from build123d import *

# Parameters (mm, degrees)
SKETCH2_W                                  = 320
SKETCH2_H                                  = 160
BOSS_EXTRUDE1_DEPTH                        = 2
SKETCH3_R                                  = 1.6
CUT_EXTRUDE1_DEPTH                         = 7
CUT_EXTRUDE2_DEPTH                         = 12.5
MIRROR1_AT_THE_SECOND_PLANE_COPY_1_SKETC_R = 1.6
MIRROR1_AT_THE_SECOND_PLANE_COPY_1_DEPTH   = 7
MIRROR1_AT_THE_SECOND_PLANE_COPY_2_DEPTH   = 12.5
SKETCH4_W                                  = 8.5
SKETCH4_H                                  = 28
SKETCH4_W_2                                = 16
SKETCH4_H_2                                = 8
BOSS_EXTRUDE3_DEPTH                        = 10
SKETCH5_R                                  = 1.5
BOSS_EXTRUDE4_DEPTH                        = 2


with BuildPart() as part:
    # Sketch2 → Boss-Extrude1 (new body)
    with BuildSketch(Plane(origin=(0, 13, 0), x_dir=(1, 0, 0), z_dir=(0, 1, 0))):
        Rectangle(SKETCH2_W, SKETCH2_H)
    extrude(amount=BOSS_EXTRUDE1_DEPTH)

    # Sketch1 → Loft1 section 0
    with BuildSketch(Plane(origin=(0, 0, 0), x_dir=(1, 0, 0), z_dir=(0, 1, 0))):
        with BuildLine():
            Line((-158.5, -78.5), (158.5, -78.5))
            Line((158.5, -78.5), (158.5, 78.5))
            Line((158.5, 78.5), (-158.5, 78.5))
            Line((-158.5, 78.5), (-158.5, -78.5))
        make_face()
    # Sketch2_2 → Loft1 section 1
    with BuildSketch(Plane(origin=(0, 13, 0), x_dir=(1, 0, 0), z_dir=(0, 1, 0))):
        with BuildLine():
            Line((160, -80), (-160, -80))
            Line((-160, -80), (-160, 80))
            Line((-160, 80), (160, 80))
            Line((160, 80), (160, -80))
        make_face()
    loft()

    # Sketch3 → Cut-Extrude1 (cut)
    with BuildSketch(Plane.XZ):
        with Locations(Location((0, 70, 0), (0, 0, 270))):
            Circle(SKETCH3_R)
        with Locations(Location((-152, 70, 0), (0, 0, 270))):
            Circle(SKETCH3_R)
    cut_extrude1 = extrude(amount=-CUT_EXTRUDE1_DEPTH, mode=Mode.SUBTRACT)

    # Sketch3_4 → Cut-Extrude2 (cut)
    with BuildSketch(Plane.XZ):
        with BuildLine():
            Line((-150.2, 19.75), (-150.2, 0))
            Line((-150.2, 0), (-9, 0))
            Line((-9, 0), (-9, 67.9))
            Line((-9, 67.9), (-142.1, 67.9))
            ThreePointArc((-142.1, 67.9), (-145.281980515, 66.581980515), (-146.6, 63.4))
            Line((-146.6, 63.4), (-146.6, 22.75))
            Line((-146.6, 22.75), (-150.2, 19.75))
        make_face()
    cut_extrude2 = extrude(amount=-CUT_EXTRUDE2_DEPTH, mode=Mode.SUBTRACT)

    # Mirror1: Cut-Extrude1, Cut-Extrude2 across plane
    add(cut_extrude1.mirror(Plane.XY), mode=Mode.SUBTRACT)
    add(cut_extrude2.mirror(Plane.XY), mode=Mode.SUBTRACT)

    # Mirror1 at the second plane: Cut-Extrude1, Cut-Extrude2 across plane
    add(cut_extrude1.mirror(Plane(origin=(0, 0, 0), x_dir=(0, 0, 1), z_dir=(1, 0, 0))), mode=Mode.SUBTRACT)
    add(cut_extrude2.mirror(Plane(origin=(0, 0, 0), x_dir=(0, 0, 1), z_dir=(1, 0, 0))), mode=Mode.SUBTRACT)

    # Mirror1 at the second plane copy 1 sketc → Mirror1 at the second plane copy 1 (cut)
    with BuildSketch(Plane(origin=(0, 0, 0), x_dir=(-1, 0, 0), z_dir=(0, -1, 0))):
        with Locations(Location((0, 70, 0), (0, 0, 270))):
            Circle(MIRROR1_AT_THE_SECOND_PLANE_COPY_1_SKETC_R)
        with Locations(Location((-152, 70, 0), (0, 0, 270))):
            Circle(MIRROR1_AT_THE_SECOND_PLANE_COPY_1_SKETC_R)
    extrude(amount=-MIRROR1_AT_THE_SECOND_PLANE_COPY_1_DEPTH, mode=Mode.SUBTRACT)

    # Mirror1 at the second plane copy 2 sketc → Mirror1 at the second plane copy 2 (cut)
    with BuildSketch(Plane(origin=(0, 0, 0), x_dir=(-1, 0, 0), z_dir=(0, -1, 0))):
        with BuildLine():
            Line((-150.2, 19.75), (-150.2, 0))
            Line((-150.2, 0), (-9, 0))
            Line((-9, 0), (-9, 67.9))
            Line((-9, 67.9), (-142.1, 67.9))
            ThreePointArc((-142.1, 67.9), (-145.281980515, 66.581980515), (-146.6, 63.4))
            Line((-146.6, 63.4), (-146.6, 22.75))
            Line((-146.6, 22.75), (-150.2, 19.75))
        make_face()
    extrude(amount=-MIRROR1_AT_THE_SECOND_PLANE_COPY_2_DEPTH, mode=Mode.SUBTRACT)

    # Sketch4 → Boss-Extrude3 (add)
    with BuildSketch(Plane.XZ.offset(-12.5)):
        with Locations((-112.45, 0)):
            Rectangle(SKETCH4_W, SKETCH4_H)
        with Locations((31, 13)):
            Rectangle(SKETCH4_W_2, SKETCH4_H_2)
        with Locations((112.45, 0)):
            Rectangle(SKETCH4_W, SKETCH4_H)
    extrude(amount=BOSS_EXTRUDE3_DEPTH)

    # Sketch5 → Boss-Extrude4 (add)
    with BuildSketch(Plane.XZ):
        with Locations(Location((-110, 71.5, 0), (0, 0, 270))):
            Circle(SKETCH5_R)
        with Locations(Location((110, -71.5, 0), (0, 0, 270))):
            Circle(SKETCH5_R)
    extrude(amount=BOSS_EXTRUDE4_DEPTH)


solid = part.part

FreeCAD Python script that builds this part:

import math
import FreeCAD as App
import Part
import Sketcher

V = App.Vector

doc = App.newDocument("Part")
body = doc.addObject("PartDesign::Body", "Body")

# Sketch on XZ plane
sketch1 = body.newObject("Sketcher::SketchObject", "Sketch")
sketch1.AttachmentSupport = (doc.getObject("XZ_Plane"), [""])
sketch1.MapMode = "FlatFace"
sketch1.AttachmentOffset = App.Placement(V(0, 0, -13), App.Rotation())
sketch1.addGeometry([
    Part.LineSegment(V(-160, -80, 0), V(-160, 80, 0)),
    Part.LineSegment(V(-160, 80, 0), V(160, 80, 0)),
    Part.LineSegment(V(160, 80, 0), V(160, -80, 0)),
    Part.LineSegment(V(160, -80, 0), V(-160, -80, 0)),
], False)
sketch1.addConstraint([
    Sketcher.Constraint("Coincident", 0, 2, 1, 1),
    Sketcher.Constraint("Coincident", 1, 2, 2, 1),
    Sketcher.Constraint("Coincident", 2, 2, 3, 1),
    Sketcher.Constraint("Coincident", 3, 2, 0, 1),
    Sketcher.Constraint("Vertical", 0),
    Sketcher.Constraint("Horizontal", 1),
    Sketcher.Constraint("Vertical", 2),
    Sketcher.Constraint("Horizontal", 3),
    Sketcher.Constraint("Symmetric", 0, 2, 2, 2, -1, 1),
    Sketcher.Constraint("DistanceX", 1, 1, 1, 2, 320.0),
    Sketcher.Constraint("DistanceY", 0, 1, 0, 2, 160.0),
])
pad1 = body.newObject("PartDesign::Pad", "Pad")
pad1.Profile = sketch1
pad1.Length = 2
pad1.Reversed = True

# Sketch on XZ plane
sketch2 = body.newObject("Sketcher::SketchObject", "Sketch001")
sketch2.AttachmentSupport = (doc.getObject("XZ_Plane"), [""])
sketch2.MapMode = "FlatFace"
sketch2.addGeometry([
    Part.LineSegment(V(-158.5, 78.5, 0), V(158.5, 78.5, 0)),
    Part.LineSegment(V(158.5, 78.5, 0), V(158.5, -78.5, 0)),
    Part.LineSegment(V(158.5, -78.5, 0), V(-158.5, -78.5, 0)),
    Part.LineSegment(V(-158.5, -78.5, 0), V(-158.5, 78.5, 0)),
], False)
sketch2.addConstraint([
    Sketcher.Constraint("Coincident", 0, 2, 1, 1),
    Sketcher.Constraint("Coincident", 1, 2, 2, 1),
    Sketcher.Constraint("Coincident", 2, 2, 3, 1),
    Sketcher.Constraint("Coincident", 3, 2, 0, 1),
    Sketcher.Constraint("Horizontal", 0),
    Sketcher.Constraint("Vertical", 1),
    Sketcher.Constraint("Horizontal", 2),
    Sketcher.Constraint("Vertical", 3),
    Sketcher.Constraint("Symmetric", 0, 2, 2, 2, -1, 1),
    Sketcher.Constraint("DistanceX", 0, 1, 0, 2, 317.0),
    Sketcher.Constraint("DistanceY", 1, 2, 1, 1, 157.0),
])

# Sketch on XZ plane
sketch3 = body.newObject("Sketcher::SketchObject", "Sketch002")
sketch3.AttachmentSupport = (doc.getObject("XZ_Plane"), [""])
sketch3.MapMode = "FlatFace"
sketch3.AttachmentOffset = App.Placement(V(0, 0, -13), App.Rotation())
sketch3.addGeometry([
    Part.LineSegment(V(-160, 80, 0), V(160, 80, 0)),
    Part.LineSegment(V(160, 80, 0), V(160, -80, 0)),
    Part.LineSegment(V(160, -80, 0), V(-160, -80, 0)),
    Part.LineSegment(V(-160, -80, 0), V(-160, 80, 0)),
], False)
sketch3.addConstraint([
    Sketcher.Constraint("Coincident", 0, 2, 1, 1),
    Sketcher.Constraint("Coincident", 1, 2, 2, 1),
    Sketcher.Constraint("Coincident", 2, 2, 3, 1),
    Sketcher.Constraint("Coincident", 3, 2, 0, 1),
    Sketcher.Constraint("Horizontal", 0),
    Sketcher.Constraint("Vertical", 1),
    Sketcher.Constraint("Horizontal", 2),
    Sketcher.Constraint("Vertical", 3),
    Sketcher.Constraint("Symmetric", 0, 2, 2, 2, -1, 1),
    Sketcher.Constraint("DistanceX", 0, 1, 0, 2, 320.0),
    Sketcher.Constraint("DistanceY", 1, 2, 1, 1, 160.0),
])

additiveloft = body.newObject("PartDesign::AdditiveLoft", "AdditiveLoft")
additiveloft.Profile = sketch2
additiveloft.Sections = [sketch3]

# Sketch on XZ plane
sketch4 = body.newObject("Sketcher::SketchObject", "Sketch003")
sketch4.AttachmentSupport = (doc.getObject("XZ_Plane"), [""])
sketch4.MapMode = "FlatFace"
sketch4.addGeometry([
    Part.Circle(V(0, 70, 0), V(0, 0, 1), 1.6),
    Part.Circle(V(-152, 70, 0), V(0, 0, 1), 1.6),
], False)
sketch4.addConstraint([
    Sketcher.Constraint("Equal", 0, 1),
    Sketcher.Constraint("PointOnObject", 0, 3, -2),
    Sketcher.Constraint("Horizontal", 0, 3, 1, 3),
    Sketcher.Constraint("Diameter", 0, 3.2),
    Sketcher.Constraint("DistanceY", -1, 1, 0, 3, 70.0),
    Sketcher.Constraint("DistanceX", 1, 3, -1, 1, 152.0),
])
pocket1 = body.newObject("PartDesign::Pocket", "Pocket")
pocket1.Profile = sketch4
pocket1.Length = 7

# Sketch on XZ plane
sketch5 = body.newObject("Sketcher::SketchObject", "Sketch004")
sketch5.AttachmentSupport = (doc.getObject("XZ_Plane"), [""])
sketch5.MapMode = "FlatFace"
sketch5.addGeometry([
    Part.LineSegment(V(-150.2, 19.75, 0), V(-150.2, 0, 0)),  # 0
    Part.LineSegment(V(-150.2, 0, 0), V(-9, 0, 0)),  # 1
    Part.LineSegment(V(-9, 0, 0), V(-9, 67.9, 0)),  # 2
    Part.LineSegment(V(-9, 67.9, 0), V(-142.1, 67.9, 0)),  # 3
    Part.ArcOfCircle(Part.Circle(V(-142.1, 63.4, 0), V(0, 0, 1), 4.5), math.radians(90), math.radians(180)),  # 4
    Part.LineSegment(V(-146.6, 63.4, 0), V(-146.6, 22.75, 0)),  # 5
    Part.LineSegment(V(-146.6, 22.75, 0), V(-150.2, 19.75, 0)),  # 6
], False)
sketch5.addConstraint([
    Sketcher.Constraint("Coincident", 0, 2, 1, 1),
    Sketcher.Constraint("Coincident", 1, 2, 2, 1),
    Sketcher.Constraint("Coincident", 2, 2, 3, 1),
    Sketcher.Constraint("Tangent", 3, 2, 4, 1),
    Sketcher.Constraint("Tangent", 4, 2, 5, 1),
    Sketcher.Constraint("Coincident", 5, 2, 6, 1),
    Sketcher.Constraint("Coincident", 6, 2, 0, 1),
    Sketcher.Constraint("Vertical", 0),
    Sketcher.Constraint("Horizontal", 1),
    Sketcher.Constraint("Vertical", 2),
    Sketcher.Constraint("Horizontal", 3),
    Sketcher.Constraint("Vertical", 5),
    Sketcher.Constraint("PointOnObject", 0, 2, -1),
    Sketcher.Constraint("Radius", 4, 4.5),
    Sketcher.Constraint("DistanceX", 1, 1, 1, 2, 141.2),
    Sketcher.Constraint("DistanceX", 3, 2, 3, 1, 133.1),
    Sketcher.Constraint("DistanceY", 2, 1, 2, 2, 67.9),
    Sketcher.Constraint("DistanceX", 1, 2, -1, 1, 9.0),
    Sketcher.Constraint("DistanceY", 6, 2, 5, 2, 3.0),
    Sketcher.Constraint("DistanceY", 0, 2, 0, 1, 19.75),
])
pocket2 = body.newObject("PartDesign::Pocket", "Pocket001")
pocket2.Profile = sketch5
pocket2.Length = 12.5
doc.recompute()

mirrored = body.newObject("PartDesign::Mirrored", "Mirrored")
mirrored.Originals = [pocket1, pocket2]
mirrored.MirrorPlane = (doc.getObject("XY_Plane"), [""])
body.Tip = mirrored
doc.recompute()

mirrored2 = body.newObject("PartDesign::Mirrored", "Mirrored001")
mirrored2.Originals = [pocket1, pocket2]
mirrored2.MirrorPlane = (doc.getObject("YZ_Plane"), [""])
body.Tip = mirrored2

# Sketch on XZ plane
sketch6 = body.newObject("Sketcher::SketchObject", "Sketch005")
sketch6.AttachmentSupport = (doc.getObject("XZ_Plane"), [""])
sketch6.MapMode = "FlatFace"
sketch6.addGeometry([
    Part.Circle(V(0, -70, 0), V(0, 0, 1), 1.6),
    Part.Circle(V(152, -70, 0), V(0, 0, 1), 1.6),
], False)
sketch6.addConstraint([
    Sketcher.Constraint("Equal", 0, 1),
    Sketcher.Constraint("PointOnObject", 0, 3, -2),
    Sketcher.Constraint("Horizontal", 0, 3, 1, 3),
    Sketcher.Constraint("Diameter", 0, 3.2),
    Sketcher.Constraint("DistanceY", 0, 3, -1, 1, 70.0),
    Sketcher.Constraint("DistanceX", -1, 1, 1, 3, 152.0),
])
pocket3 = body.newObject("PartDesign::Pocket", "Pocket002")
pocket3.Profile = sketch6
pocket3.Length = 7

# Sketch on XZ plane
sketch7 = body.newObject("Sketcher::SketchObject", "Sketch006")
sketch7.AttachmentSupport = (doc.getObject("XZ_Plane"), [""])
sketch7.MapMode = "FlatFace"
sketch7.addGeometry([
    Part.LineSegment(V(150.2, -19.75, 0), V(150.2, 0, 0)),  # 0
    Part.LineSegment(V(150.2, 0, 0), V(9, 0, 0)),  # 1
    Part.LineSegment(V(9, 0, 0), V(9, -67.9, 0)),  # 2
    Part.LineSegment(V(9, -67.9, 0), V(142.1, -67.9, 0)),  # 3
    Part.ArcOfCircle(Part.Circle(V(142.1, -63.4, 0), V(0, 0, 1), 4.5), math.radians(-90), math.radians(0)),  # 4
    Part.LineSegment(V(146.6, -63.4, 0), V(146.6, -22.75, 0)),  # 5
    Part.LineSegment(V(146.6, -22.75, 0), V(150.2, -19.75, 0)),  # 6
], False)
sketch7.addConstraint([
    Sketcher.Constraint("Coincident", 0, 2, 1, 1),
    Sketcher.Constraint("Coincident", 1, 2, 2, 1),
    Sketcher.Constraint("Coincident", 2, 2, 3, 1),
    Sketcher.Constraint("Tangent", 3, 2, 4, 1),
    Sketcher.Constraint("Tangent", 4, 2, 5, 1),
    Sketcher.Constraint("Coincident", 5, 2, 6, 1),
    Sketcher.Constraint("Coincident", 6, 2, 0, 1),
    Sketcher.Constraint("Vertical", 0),
    Sketcher.Constraint("Horizontal", 1),
    Sketcher.Constraint("Vertical", 2),
    Sketcher.Constraint("Horizontal", 3),
    Sketcher.Constraint("Vertical", 5),
    Sketcher.Constraint("PointOnObject", 0, 2, -1),
    Sketcher.Constraint("Radius", 4, 4.5),
    Sketcher.Constraint("DistanceX", 1, 2, 1, 1, 141.2),
    Sketcher.Constraint("DistanceX", 3, 1, 3, 2, 133.1),
    Sketcher.Constraint("DistanceY", 2, 2, 2, 1, 67.9),
    Sketcher.Constraint("DistanceX", -1, 1, 1, 2, 9.0),
    Sketcher.Constraint("DistanceY", 5, 2, 6, 2, 3.0),
    Sketcher.Constraint("DistanceY", 0, 1, 0, 2, 19.75),
])
pocket4 = body.newObject("PartDesign::Pocket", "Pocket003")
pocket4.Profile = sketch7
pocket4.Length = 12.5

# Sketch on XZ plane
sketch8 = body.newObject("Sketcher::SketchObject", "Sketch007")
sketch8.AttachmentSupport = (doc.getObject("XZ_Plane"), [""])
sketch8.MapMode = "FlatFace"
sketch8.AttachmentOffset = App.Placement(V(0, 0, -12.5), App.Rotation())
sketch8.addGeometry([
    Part.LineSegment(V(-116.7, 14, 0), V(-116.7, -14, 0)),  # 0
    Part.LineSegment(V(-116.7, -14, 0), V(-108.2, -14, 0)),  # 1
    Part.LineSegment(V(-108.2, -14, 0), V(-108.2, 14, 0)),  # 2
    Part.LineSegment(V(-108.2, 14, 0), V(-116.7, 14, 0)),  # 3
    Part.LineSegment(V(23, 17, 0), V(23, 9, 0)),  # 4
    Part.LineSegment(V(23, 9, 0), V(39, 9, 0)),  # 5
    Part.LineSegment(V(39, 9, 0), V(39, 17, 0)),  # 6
    Part.LineSegment(V(39, 17, 0), V(23, 17, 0)),  # 7
    Part.LineSegment(V(108.2, 14, 0), V(108.2, -14, 0)),  # 8
    Part.LineSegment(V(108.2, -14, 0), V(116.7, -14, 0)),  # 9
    Part.LineSegment(V(116.7, -14, 0), V(116.7, 14, 0)),  # 10
    Part.LineSegment(V(116.7, 14, 0), V(108.2, 14, 0)),  # 11
], False)
sketch8.addConstraint([
    Sketcher.Constraint("Coincident", 0, 2, 1, 1),
    Sketcher.Constraint("Coincident", 1, 2, 2, 1),
    Sketcher.Constraint("Coincident", 2, 2, 3, 1),
    Sketcher.Constraint("Coincident", 3, 2, 0, 1),
    Sketcher.Constraint("Coincident", 4, 2, 5, 1),
    Sketcher.Constraint("Coincident", 5, 2, 6, 1),
    Sketcher.Constraint("Coincident", 6, 2, 7, 1),
    Sketcher.Constraint("Coincident", 7, 2, 4, 1),
    Sketcher.Constraint("Coincident", 8, 2, 9, 1),
    Sketcher.Constraint("Coincident", 9, 2, 10, 1),
    Sketcher.Constraint("Coincident", 10, 2, 11, 1),
    Sketcher.Constraint("Coincident", 11, 2, 8, 1),
    Sketcher.Constraint("Vertical", 0),
    Sketcher.Constraint("Horizontal", 1),
    Sketcher.Constraint("Vertical", 2),
    Sketcher.Constraint("Horizontal", 3),
    Sketcher.Constraint("Vertical", 4),
    Sketcher.Constraint("Horizontal", 5),
    Sketcher.Constraint("Vertical", 6),
    Sketcher.Constraint("Horizontal", 7),
    Sketcher.Constraint("Vertical", 8),
    Sketcher.Constraint("Horizontal", 9),
    Sketcher.Constraint("Vertical", 10),
    Sketcher.Constraint("Horizontal", 11),
    Sketcher.Constraint("Symmetric", 2, 2, 8, 2, -1, 1),
    Sketcher.Constraint("Symmetric", 0, 2, 10, 2, -1, 1),
    Sketcher.Constraint("Horizontal", 1, 2, 8, 2),
    Sketcher.Constraint("DistanceX", 5, 1, 5, 2, 16.0),
    Sketcher.Constraint("DistanceY", 0, 2, 0, 1, 28.0),
    Sketcher.Constraint("DistanceY", 4, 2, 4, 1, 8.0),
    Sketcher.Constraint("DistanceX", 1, 1, 1, 2, 8.5),
    Sketcher.Constraint("DistanceX", -1, 1, 4, 2, 23.0),
    Sketcher.Constraint("DistanceY", -1, 1, 4, 2, 9.0),
    Sketcher.Constraint("DistanceX", 0, 2, -1, 1, 116.7),
])
pad2 = body.newObject("PartDesign::Pad", "Pad001")
pad2.Profile = sketch8
pad2.Length = 10

# Sketch on XZ plane
sketch9 = body.newObject("Sketcher::SketchObject", "Sketch008")
sketch9.AttachmentSupport = (doc.getObject("XZ_Plane"), [""])
sketch9.MapMode = "FlatFace"
sketch9.addGeometry([
    Part.Circle(V(-110, 71.5, 0), V(0, 0, 1), 1.5),
    Part.Circle(V(110, -71.5, 0), V(0, 0, 1), 1.5),
], False)
sketch9.addConstraint([
    Sketcher.Constraint("Equal", 0, 1),
    Sketcher.Constraint("Symmetric", 0, 3, 1, 3, -1, 1),
    Sketcher.Constraint("Diameter", 0, 3.0),
    Sketcher.Constraint("DistanceX", 0, 3, -1, 1, 110.0),
    Sketcher.Constraint("DistanceY", 1, 3, 0, 3, 143.0),
])
pad3 = body.newObject("PartDesign::Pad", "Pad002")
pad3.Profile = sketch9
pad3.Length = 2

doc.recompute()
